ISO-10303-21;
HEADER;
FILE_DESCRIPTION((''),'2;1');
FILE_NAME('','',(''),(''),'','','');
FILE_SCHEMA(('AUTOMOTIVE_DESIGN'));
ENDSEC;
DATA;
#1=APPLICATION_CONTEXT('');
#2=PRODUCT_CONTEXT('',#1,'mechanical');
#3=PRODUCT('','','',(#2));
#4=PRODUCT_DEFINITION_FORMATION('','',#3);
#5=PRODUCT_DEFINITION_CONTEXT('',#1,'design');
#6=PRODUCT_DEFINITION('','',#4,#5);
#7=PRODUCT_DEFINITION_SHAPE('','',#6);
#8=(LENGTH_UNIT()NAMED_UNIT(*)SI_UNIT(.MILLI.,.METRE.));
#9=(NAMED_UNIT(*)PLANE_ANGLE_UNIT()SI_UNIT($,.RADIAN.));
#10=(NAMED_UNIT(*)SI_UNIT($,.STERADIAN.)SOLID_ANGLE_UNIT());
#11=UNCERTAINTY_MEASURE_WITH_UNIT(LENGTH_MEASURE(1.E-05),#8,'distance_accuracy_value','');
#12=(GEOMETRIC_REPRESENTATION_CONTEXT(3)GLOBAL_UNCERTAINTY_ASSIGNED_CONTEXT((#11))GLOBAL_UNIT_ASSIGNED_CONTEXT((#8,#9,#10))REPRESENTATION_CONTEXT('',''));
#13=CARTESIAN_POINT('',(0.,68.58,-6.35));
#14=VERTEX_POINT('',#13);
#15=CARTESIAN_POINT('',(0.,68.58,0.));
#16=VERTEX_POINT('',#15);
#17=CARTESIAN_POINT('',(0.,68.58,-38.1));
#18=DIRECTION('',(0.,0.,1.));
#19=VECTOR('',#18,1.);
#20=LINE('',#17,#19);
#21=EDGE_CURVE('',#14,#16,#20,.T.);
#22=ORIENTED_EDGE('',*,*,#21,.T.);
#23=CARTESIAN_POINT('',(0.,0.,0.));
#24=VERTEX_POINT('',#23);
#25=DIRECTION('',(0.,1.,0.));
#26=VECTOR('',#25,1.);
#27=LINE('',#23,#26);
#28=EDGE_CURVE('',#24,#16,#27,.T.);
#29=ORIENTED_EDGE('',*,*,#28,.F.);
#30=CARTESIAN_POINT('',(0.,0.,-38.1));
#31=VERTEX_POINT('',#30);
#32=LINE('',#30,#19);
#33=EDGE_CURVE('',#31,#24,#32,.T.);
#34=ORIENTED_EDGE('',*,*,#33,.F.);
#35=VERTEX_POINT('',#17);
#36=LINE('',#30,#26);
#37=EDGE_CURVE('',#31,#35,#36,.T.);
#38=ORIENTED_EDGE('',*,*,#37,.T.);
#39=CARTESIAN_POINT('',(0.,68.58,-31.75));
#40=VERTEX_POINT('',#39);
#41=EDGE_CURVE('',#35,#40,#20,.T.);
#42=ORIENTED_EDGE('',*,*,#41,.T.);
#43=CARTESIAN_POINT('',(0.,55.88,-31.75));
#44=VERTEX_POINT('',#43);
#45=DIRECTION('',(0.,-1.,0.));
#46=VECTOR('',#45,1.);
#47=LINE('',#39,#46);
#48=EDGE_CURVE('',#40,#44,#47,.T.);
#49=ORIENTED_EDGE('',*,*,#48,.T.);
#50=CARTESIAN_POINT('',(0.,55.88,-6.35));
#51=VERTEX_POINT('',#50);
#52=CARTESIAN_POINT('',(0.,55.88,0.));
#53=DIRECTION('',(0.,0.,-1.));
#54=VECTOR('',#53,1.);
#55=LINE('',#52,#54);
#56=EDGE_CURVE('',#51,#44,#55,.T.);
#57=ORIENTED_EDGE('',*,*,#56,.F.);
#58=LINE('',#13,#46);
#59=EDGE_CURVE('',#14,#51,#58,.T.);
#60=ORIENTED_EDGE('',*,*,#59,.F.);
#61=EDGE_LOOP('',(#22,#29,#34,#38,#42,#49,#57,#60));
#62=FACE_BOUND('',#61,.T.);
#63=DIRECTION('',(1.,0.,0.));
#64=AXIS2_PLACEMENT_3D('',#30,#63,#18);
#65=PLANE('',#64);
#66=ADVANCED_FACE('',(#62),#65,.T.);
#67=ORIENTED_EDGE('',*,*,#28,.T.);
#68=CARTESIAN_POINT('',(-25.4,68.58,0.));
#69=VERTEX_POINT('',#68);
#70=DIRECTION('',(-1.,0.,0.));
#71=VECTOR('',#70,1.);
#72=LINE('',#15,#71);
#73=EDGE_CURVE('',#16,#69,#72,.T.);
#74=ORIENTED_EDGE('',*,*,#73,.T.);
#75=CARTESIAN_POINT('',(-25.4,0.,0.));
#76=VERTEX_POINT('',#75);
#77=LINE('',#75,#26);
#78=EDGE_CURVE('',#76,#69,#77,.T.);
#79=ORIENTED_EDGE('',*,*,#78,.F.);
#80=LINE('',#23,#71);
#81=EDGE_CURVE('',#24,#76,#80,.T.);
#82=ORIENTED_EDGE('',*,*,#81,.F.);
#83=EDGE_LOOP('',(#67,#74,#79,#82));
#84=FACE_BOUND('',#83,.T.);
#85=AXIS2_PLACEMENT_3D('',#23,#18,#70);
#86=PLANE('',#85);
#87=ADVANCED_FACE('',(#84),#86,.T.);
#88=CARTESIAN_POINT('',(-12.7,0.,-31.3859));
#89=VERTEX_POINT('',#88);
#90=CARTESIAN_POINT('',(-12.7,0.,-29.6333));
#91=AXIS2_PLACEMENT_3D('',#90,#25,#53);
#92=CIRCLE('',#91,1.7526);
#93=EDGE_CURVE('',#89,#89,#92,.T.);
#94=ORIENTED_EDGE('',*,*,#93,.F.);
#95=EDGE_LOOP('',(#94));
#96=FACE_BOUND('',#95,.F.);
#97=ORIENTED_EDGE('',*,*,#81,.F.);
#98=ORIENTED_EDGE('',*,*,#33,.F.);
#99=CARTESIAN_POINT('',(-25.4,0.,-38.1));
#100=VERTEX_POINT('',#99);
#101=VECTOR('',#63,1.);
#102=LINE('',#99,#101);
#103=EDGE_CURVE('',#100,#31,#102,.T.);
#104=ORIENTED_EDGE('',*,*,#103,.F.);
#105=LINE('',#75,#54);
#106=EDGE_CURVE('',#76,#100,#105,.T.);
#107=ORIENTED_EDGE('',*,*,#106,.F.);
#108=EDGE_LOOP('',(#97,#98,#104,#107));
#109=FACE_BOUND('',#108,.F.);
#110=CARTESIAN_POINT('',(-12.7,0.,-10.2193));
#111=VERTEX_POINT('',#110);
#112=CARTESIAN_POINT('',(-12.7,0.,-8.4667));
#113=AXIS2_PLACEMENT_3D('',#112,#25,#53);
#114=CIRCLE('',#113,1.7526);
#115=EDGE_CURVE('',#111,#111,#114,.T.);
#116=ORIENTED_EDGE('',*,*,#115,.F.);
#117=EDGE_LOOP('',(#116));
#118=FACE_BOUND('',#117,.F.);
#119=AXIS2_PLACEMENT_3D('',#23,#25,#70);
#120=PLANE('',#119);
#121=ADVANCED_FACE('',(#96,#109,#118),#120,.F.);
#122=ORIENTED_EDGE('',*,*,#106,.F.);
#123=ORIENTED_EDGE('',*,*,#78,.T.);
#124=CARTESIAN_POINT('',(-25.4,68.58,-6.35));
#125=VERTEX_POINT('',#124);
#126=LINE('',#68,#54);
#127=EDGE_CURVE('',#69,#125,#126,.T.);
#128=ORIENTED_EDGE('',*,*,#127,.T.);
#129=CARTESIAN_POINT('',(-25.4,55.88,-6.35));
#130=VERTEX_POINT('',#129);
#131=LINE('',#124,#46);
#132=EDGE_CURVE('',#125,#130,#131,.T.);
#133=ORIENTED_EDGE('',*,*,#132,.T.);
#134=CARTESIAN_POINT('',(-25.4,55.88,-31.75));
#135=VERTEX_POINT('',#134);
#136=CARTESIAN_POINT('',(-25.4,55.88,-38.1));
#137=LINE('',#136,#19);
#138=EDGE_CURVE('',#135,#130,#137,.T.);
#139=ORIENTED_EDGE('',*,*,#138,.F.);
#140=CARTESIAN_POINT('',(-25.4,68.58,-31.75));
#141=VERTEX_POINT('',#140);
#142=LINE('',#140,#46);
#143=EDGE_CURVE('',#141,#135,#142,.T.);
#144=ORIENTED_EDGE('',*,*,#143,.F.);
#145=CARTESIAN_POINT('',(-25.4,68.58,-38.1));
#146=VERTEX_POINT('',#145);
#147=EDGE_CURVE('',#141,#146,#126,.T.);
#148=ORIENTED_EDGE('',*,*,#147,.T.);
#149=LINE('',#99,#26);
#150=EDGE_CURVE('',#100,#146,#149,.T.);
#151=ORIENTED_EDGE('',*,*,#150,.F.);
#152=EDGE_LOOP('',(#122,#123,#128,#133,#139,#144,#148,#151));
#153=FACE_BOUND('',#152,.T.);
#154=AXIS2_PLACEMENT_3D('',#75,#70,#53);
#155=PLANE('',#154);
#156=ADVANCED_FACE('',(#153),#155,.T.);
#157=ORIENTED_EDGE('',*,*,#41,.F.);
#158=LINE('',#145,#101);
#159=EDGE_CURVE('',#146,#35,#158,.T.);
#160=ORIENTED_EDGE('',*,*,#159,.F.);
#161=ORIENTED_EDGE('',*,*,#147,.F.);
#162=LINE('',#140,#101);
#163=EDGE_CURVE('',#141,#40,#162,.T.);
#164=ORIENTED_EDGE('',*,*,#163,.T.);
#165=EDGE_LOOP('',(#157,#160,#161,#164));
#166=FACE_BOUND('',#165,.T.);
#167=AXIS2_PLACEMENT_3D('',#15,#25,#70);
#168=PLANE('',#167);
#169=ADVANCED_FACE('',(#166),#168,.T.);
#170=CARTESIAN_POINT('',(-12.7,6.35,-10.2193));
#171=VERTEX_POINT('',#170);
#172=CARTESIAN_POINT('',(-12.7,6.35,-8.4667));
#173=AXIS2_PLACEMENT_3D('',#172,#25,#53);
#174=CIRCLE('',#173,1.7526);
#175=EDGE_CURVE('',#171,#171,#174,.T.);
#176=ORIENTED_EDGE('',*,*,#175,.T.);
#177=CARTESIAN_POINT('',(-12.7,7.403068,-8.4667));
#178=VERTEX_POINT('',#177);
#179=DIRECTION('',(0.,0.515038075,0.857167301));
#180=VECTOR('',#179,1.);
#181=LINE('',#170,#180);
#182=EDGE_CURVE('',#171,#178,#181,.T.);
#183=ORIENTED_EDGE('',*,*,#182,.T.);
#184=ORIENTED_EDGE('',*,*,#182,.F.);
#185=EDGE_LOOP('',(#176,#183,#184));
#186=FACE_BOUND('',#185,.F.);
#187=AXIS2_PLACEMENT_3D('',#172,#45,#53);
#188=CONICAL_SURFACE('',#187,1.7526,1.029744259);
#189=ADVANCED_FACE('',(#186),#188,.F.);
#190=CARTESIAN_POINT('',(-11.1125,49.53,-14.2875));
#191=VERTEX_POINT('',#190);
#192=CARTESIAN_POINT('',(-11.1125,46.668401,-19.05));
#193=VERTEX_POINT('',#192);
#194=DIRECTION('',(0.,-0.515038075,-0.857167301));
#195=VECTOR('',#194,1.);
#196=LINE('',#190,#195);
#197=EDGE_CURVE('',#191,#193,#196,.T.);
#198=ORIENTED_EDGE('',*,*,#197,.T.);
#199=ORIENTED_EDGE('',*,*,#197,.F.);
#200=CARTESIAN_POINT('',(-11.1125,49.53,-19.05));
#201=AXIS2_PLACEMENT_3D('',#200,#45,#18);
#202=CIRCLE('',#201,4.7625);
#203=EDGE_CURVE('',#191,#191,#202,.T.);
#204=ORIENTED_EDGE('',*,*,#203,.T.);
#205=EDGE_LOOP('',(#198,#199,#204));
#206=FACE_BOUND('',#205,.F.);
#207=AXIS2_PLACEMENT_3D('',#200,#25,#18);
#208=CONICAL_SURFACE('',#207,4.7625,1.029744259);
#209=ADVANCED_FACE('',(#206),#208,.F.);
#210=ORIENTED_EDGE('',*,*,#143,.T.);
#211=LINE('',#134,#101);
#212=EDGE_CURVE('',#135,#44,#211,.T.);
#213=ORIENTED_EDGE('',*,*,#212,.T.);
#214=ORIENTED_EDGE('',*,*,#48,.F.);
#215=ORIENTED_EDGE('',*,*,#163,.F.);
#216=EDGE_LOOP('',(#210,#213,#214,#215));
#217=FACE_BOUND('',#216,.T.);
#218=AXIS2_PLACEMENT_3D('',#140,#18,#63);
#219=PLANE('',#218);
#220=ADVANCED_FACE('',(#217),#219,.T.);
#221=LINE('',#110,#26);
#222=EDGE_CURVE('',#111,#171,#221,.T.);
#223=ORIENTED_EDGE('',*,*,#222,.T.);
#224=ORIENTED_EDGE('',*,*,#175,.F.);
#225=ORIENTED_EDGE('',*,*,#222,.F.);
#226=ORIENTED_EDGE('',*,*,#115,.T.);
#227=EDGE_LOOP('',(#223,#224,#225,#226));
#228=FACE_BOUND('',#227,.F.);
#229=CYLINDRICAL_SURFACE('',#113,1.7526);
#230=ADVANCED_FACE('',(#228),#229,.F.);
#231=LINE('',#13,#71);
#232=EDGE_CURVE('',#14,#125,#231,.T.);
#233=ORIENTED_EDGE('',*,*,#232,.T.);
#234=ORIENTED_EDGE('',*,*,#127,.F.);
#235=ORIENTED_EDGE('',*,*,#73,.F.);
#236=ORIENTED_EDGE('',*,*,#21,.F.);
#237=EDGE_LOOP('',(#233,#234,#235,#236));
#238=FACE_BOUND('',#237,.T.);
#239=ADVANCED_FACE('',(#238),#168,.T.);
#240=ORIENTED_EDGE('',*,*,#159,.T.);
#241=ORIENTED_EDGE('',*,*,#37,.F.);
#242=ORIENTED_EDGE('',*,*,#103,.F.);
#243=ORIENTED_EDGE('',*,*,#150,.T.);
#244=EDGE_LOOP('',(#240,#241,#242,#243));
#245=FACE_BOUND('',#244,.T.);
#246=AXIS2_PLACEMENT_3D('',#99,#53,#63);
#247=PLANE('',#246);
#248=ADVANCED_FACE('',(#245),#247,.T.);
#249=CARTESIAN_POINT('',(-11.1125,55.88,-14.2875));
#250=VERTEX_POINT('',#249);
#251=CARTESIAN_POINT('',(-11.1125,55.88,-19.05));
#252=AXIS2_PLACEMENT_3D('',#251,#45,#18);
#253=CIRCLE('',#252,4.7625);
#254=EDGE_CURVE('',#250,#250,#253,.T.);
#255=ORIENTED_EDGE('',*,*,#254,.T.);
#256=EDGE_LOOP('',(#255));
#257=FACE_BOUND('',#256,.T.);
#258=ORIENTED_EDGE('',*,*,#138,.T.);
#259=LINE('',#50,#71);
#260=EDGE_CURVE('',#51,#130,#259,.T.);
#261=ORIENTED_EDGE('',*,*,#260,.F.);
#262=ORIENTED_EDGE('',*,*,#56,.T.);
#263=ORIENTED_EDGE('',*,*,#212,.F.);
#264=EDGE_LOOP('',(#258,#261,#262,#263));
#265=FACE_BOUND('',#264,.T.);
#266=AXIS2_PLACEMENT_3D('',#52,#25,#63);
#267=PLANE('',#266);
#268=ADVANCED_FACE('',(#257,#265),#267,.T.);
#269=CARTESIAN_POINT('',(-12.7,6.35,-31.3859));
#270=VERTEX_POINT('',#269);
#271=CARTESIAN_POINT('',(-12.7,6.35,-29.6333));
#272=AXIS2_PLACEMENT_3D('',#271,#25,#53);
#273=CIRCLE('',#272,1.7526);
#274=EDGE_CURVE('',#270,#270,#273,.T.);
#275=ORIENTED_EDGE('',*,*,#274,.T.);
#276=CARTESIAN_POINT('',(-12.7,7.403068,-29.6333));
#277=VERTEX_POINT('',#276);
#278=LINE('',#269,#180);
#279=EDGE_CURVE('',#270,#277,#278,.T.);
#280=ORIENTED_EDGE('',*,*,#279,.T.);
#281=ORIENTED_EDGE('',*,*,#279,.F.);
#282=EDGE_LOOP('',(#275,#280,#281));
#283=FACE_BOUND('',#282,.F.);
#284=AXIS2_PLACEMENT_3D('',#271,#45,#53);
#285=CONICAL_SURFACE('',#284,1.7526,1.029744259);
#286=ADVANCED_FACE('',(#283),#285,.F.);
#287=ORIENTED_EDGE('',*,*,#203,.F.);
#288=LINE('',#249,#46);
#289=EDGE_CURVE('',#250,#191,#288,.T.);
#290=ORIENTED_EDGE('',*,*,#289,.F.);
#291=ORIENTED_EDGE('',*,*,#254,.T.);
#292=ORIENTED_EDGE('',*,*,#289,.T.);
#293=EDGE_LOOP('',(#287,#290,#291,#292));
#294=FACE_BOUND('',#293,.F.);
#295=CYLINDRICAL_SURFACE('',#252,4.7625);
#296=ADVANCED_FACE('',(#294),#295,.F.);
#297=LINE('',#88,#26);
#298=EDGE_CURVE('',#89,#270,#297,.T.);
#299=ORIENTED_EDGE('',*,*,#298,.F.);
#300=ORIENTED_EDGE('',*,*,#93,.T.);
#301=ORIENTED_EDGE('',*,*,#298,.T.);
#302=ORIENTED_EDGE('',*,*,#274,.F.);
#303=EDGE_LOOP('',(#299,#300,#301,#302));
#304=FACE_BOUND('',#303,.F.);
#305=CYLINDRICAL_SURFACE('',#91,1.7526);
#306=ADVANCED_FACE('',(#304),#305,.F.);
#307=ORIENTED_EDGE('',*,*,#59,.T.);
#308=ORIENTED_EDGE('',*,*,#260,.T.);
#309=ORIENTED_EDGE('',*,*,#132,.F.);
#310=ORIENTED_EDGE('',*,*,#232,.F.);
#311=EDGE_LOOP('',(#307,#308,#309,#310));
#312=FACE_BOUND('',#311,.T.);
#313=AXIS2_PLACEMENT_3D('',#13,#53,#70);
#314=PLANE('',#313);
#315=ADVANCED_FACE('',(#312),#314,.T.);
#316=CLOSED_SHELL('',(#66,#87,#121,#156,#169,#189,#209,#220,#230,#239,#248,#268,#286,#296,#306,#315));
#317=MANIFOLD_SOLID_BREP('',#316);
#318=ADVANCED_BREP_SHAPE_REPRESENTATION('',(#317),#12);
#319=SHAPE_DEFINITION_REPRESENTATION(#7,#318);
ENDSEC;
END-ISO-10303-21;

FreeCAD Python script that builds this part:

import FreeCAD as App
import Part
import Sketcher
from FreeCAD import Vector
Q = App.Units.Quantity


def add_polygon(sketch, points):
    """Adds a closed chain of lines whose ends are joined by coincident constraints."""
    first, n = sketch.GeometryCount, len(points)
    for a, b in zip(points, points[1:] + points[:1]):
        sketch.addGeometry(Part.LineSegment(App.Vector(*a, 0), App.Vector(*b, 0)), False)
    for i in range(n):
        sketch.addConstraint(Sketcher.Constraint("Coincident", first + i, 2, first + (i + 1) % n, 1))

doc = App.newDocument("Part")
body = doc.addObject("PartDesign::Body", "Body")

sketch1 = body.newObject("Sketcher::SketchObject", "Sketch")
sketch1.AttachmentSupport = (doc.getObject("XZ_Plane"), [""])
sketch1.MapMode = "FlatFace"
add_polygon(sketch1, [(-25, 0), (0, 0), (0, -38), (-25, -38)])
sketch1.addConstraint([
    Sketcher.Constraint("Horizontal", 0),
    Sketcher.Constraint("Vertical", 1),
    Sketcher.Constraint("Horizontal", 2),
    Sketcher.Constraint("Vertical", 3),
    Sketcher.Constraint("Coincident", 0, 2, -1, 1),
    Sketcher.Constraint("DistanceX", 0, 1, 0, 2, Q("1 in")),
    Sketcher.Constraint("DistanceY", 1, 2, 1, 1, Q("1.5 in")),
])
pad1 = body.newObject("PartDesign::Pad", "Pad")
pad1.Profile = sketch1
pad1.Length = Q("2.7 in")
pad1.Reversed = True

sketch2 = body.newObject("Sketcher::SketchObject", "Sketch001")
sketch2.AttachmentSupport = (doc.getObject("XZ_Plane"), [""])
sketch2.MapMode = "FlatFace"
sketch2.AttachmentOffset = App.Placement(Vector(0, 0, -2.7 * 25.4), App.Rotation())
add_polygon(sketch2, [(-25, -6), (0, -6), (0, -32), (-25, -32)])
sketch2.addConstraint([
    Sketcher.Constraint("Horizontal", 0),
    Sketcher.Constraint("Vertical", 1),
    Sketcher.Constraint("Horizontal", 2),
    Sketcher.Constraint("Vertical", 3),
    Sketcher.Constraint("PointOnObject", 0, 2, -2),
    Sketcher.Constraint("Equal", 2, 1),
    Sketcher.Constraint("DistanceX", 0, 1, 0, 2, Q("1 in")),
    Sketcher.Constraint("DistanceY", 0, 2, -1, 1, Q("0.25 in")),
])
pocket1 = body.newObject("PartDesign::Pocket", "Pocket")
pocket1.Profile = sketch2
pocket1.Length = Q("0.5 in")
pocket1.Reversed = True

sketch3 = body.newObject("Sketcher::SketchObject", "Sketch002")
sketch3.AttachmentSupport = (doc.getObject("XZ_Plane"), [""])
sketch3.MapMode = "FlatFace"
sketch3.AttachmentOffset = App.Placement(Vector(0, 0, -2.2 * 25.4), App.Rotation())
sketch3.addGeometry(Part.Circle(Vector(-11.1, -19.1, 0), Vector(0, 0, 1), 4.8), False)
sketch3.addConstraint([
    Sketcher.Constraint("Diameter", 0, Q("0.375 in")),
    Sketcher.Constraint("DistanceY", 0, 3, -1, 1, Q("0.75 in")),
    Sketcher.Constraint("DistanceX", 0, 3, -1, 1, Q("0.4375 in")),
])
doc.recompute()
hole = body.newObject("PartDesign::Hole", "Hole")
hole.Profile = sketch3
hole.ThreadType = "None"
hole.Diameter = Q("0.375 in")
hole.DepthType = "Dimension"
hole.Depth = Q("0.25 in")
hole.DrillPoint = "Angled"
hole.DrillPointAngle = 118
hole.Reversed = True

sketch4 = body.newObject("Sketcher::SketchObject", "Sketch003")
sketch4.AttachmentSupport = (doc.getObject("XZ_Plane"), [""])
sketch4.MapMode = "FlatFace"
sketch4.addGeometry([
    Part.Circle(Vector(-12.7, -29.6, 0), Vector(0, 0, 1), 1.8),
    Part.Circle(Vector(-12.7, -8.5, 0), Vector(0, 0, 1), 1.8),
], False)
sketch4.addConstraint([
    Sketcher.Constraint("Equal", 0, 1),
    Sketcher.Constraint("Vertical", 0, 3, 1, 3),
    Sketcher.Constraint("Diameter", 0, Q("0.138 in")),
    Sketcher.Constraint("DistanceX", 0, 3, -1, 1, Q("0.5 in")),
    Sketcher.Constraint("DistanceY", 0, 3, -1, 1, 29.6333),
    Sketcher.Constraint("DistanceY", 1, 3, -1, 1, 8.4667),
])
doc.recompute()
hole2 = body.newObject("PartDesign::Hole", "Hole001")
hole2.Profile = sketch4
hole2.ThreadType = "None"
hole2.Diameter = Q("0.138 in")
hole2.DepthType = "Dimension"
hole2.Depth = Q("0.25 in")
hole2.DrillPoint = "Angled"
hole2.DrillPointAngle = 118

doc.recompute()
